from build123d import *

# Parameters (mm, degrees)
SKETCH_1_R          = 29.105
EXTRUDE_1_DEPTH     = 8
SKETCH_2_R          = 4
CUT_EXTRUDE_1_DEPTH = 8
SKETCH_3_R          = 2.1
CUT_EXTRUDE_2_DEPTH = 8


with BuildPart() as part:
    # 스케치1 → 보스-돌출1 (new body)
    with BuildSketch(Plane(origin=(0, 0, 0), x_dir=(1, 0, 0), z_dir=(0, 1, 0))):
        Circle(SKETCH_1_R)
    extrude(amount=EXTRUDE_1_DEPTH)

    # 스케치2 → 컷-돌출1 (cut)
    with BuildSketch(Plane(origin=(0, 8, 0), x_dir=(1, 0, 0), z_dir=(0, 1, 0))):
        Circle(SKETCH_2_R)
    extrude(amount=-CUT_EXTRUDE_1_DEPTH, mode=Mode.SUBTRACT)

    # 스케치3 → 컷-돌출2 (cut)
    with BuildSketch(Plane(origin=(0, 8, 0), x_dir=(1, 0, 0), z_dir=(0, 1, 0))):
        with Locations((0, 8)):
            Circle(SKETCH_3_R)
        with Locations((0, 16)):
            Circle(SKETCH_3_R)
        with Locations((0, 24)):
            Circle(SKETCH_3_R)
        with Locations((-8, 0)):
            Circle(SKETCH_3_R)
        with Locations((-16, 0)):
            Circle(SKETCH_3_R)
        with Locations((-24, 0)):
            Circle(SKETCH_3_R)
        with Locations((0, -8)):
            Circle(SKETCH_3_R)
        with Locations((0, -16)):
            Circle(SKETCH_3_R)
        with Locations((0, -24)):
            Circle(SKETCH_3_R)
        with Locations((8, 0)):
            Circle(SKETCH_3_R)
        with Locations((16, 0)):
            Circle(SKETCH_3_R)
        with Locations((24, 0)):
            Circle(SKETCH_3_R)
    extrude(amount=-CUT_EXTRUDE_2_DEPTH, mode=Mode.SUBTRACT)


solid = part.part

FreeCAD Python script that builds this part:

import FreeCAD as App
import Part
import Sketcher

V = App.Vector
Q = App.Units.Quantity

doc = App.newDocument("Part")
params = doc.addObject("Spreadsheet::Sheet", "Params")
for row, (alias, value) in enumerate([
    ("sketch1_diameter", "58.21 mm"),
    ("pad1_length", "8 mm"),
    ("sketch2_diameter", "8 mm"),
    ("pocket1_length", "8 mm"),
    ("sketch3_diameter", "4.2 mm"),
    ("pocket2_length", "8 mm"),
], start=1):
    params.set(f"A{row}", alias)
    params.set(f"B{row}", "=" + value)
    params.setAlias(f"B{row}", alias)

body = doc.addObject("PartDesign::Body", "Body")

sketch1 = doc.addObject("Sketcher::SketchObject", "Sketch")
body.addObject(sketch1)
sketch1.AttachmentSupport = (doc.XZ_Plane, [""])
sketch1.MapMode = "FlatFace"
sketch1.addGeometry(Part.Circle(V(0, 0, 0), V(0, 0, 1), 29), False)
sketch1.addConstraint([
    Sketcher.Constraint("Coincident", 0, 3, -1, 1),
    Sketcher.Constraint("Diameter", 0, Q("58.21 mm")),
])
sketch1.setExpression("Constraints[1]", "Params.sketch1_diameter")
pad1 = doc.addObject("PartDesign::Pad", "Pad")
body.addObject(pad1)
pad1.Profile = sketch1
pad1.setExpression("Length", "Params.pad1_length")
pad1.Reversed = True

sketch2 = doc.addObject("Sketcher::SketchObject", "Sketch001")
body.addObject(sketch2)
sketch2.AttachmentSupport = (doc.XZ_Plane, [""])
sketch2.MapMode = "FlatFace"
sketch2.AttachmentOffset = App.Placement(V(0, 0, -8), App.Rotation())
sketch2.addGeometry(Part.Circle(V(0, 0, 0), V(0, 0, 1), 4), False)
sketch2.addConstraint([
    Sketcher.Constraint("Coincident", 0, 3, -1, 1),
    Sketcher.Constraint("Diameter", 0, Q("8 mm")),
])
sketch2.setExpression("Constraints[1]", "Params.sketch2_diameter")
pocket1 = doc.addObject("PartDesign::Pocket", "Pocket")
body.addObject(pocket1)
pocket1.Profile = sketch2
pocket1.setExpression("Length", "Params.pocket1_length")
pocket1.Reversed = True

sketch3 = doc.addObject("Sketcher::SketchObject", "Sketch002")
body.addObject(sketch3)
sketch3.AttachmentSupport = (doc.XZ_Plane, [""])
sketch3.MapMode = "FlatFace"
sketch3.AttachmentOffset = App.Placement(V(0, 0, -8), App.Rotation())
sketch3.addGeometry([
    Part.Circle(V(0, -8, 0), V(0, 0, 1), 2.1),
    Part.Circle(V(0, -16, 0), V(0, 0, 1), 2.1),
    Part.Circle(V(0, -24, 0), V(0, 0, 1), 2.1),
    Part.Circle(V(-8, 0, 0), V(0, 0, 1), 2.1),
    Part.Circle(V(-16, 0, 0), V(0, 0, 1), 2.1),
    Part.Circle(V(-24, 0, 0), V(0, 0, 1), 2.1),
    Part.Circle(V(0, 8, 0), V(0, 0, 1), 2.1),
    Part.Circle(V(0, 16, 0), V(0, 0, 1), 2.1),
    Part.Circle(V(0, 24, 0), V(0, 0, 1), 2.1),
    Part.Circle(V(8, 0, 0), V(0, 0, 1), 2.1),
    Part.Circle(V(16, 0, 0), V(0, 0, 1), 2.1),
    Part.Circle(V(24, 0, 0), V(0, 0, 1), 2.1),
], False)
sketch3.addConstraint([
    Sketcher.Constraint("Equal", 0, 1),
    Sketcher.Constraint("Equal", 1, 2),
    Sketcher.Constraint("Equal", 2, 3),
    Sketcher.Constraint("Equal", 3, 4),
    Sketcher.Constraint("Equal", 4, 5),
    Sketcher.Constraint("Equal", 5, 6),
    Sketcher.Constraint("Equal", 6, 7),
    Sketcher.Constraint("Equal", 7, 8),
    Sketcher.Constraint("Equal", 8, 9),
    Sketcher.Constraint("Equal", 9, 10),
    Sketcher.Constraint("Equal", 10, 11),
    Sketcher.Constraint("Symmetric", 0, 3, 6, 3, -1, 1),
    Sketcher.Constraint("Symmetric", 1, 3, 7, 3, -1, 1),
    Sketcher.Constraint("Symmetric", 2, 3, 8, 3, -1, 1),
    Sketcher.Constraint("Symmetric", 3, 3, 9, 3, -1, 1),
    Sketcher.Constraint("Symmetric", 4, 3, 10, 3, -1, 1),
    Sketcher.Constraint("Symmetric", 5, 3, 11, 3, -1, 1),
    Sketcher.Constraint("PointOnObject", 0, 3, -2),
    Sketcher.Constraint("PointOnObject", 1, 3, -2),
    Sketcher.Constraint("PointOnObject", 2, 3, -2),
    Sketcher.Constraint("PointOnObject", 3, 3, -1),
    Sketcher.Constraint("PointOnObject", 4, 3, -1),
    Sketcher.Constraint("PointOnObject", 5, 3, -1),
    Sketcher.Constraint("Diameter", 0, Q("4.2 mm")),
    Sketcher.Constraint("DistanceY", 0, 3, -1, 1, Q("8 mm")),
    Sketcher.Constraint("DistanceY", 1, 3, -1, 1, Q("16 mm")),
    Sketcher.Constraint("DistanceY", 2, 3, -1, 1, Q("24 mm")),
    Sketcher.Constraint("DistanceX", 3, 3, -1, 1, Q("8 mm")),
    Sketcher.Constraint("DistanceX", 4, 3, -1, 1, Q("16 mm")),
    Sketcher.Constraint("DistanceX", 5, 3, -1, 1, Q("24 mm")),
])
sketch3.setExpression("Constraints[23]", "Params.sketch3_diameter")
pocket2 = doc.addObject("PartDesign::Pocket", "Pocket001")
body.addObject(pocket2)
pocket2.Profile = sketch3
pocket2.setExpression("Length", "Params.pocket2_length")
pocket2.Reversed = True

doc.recompute()
